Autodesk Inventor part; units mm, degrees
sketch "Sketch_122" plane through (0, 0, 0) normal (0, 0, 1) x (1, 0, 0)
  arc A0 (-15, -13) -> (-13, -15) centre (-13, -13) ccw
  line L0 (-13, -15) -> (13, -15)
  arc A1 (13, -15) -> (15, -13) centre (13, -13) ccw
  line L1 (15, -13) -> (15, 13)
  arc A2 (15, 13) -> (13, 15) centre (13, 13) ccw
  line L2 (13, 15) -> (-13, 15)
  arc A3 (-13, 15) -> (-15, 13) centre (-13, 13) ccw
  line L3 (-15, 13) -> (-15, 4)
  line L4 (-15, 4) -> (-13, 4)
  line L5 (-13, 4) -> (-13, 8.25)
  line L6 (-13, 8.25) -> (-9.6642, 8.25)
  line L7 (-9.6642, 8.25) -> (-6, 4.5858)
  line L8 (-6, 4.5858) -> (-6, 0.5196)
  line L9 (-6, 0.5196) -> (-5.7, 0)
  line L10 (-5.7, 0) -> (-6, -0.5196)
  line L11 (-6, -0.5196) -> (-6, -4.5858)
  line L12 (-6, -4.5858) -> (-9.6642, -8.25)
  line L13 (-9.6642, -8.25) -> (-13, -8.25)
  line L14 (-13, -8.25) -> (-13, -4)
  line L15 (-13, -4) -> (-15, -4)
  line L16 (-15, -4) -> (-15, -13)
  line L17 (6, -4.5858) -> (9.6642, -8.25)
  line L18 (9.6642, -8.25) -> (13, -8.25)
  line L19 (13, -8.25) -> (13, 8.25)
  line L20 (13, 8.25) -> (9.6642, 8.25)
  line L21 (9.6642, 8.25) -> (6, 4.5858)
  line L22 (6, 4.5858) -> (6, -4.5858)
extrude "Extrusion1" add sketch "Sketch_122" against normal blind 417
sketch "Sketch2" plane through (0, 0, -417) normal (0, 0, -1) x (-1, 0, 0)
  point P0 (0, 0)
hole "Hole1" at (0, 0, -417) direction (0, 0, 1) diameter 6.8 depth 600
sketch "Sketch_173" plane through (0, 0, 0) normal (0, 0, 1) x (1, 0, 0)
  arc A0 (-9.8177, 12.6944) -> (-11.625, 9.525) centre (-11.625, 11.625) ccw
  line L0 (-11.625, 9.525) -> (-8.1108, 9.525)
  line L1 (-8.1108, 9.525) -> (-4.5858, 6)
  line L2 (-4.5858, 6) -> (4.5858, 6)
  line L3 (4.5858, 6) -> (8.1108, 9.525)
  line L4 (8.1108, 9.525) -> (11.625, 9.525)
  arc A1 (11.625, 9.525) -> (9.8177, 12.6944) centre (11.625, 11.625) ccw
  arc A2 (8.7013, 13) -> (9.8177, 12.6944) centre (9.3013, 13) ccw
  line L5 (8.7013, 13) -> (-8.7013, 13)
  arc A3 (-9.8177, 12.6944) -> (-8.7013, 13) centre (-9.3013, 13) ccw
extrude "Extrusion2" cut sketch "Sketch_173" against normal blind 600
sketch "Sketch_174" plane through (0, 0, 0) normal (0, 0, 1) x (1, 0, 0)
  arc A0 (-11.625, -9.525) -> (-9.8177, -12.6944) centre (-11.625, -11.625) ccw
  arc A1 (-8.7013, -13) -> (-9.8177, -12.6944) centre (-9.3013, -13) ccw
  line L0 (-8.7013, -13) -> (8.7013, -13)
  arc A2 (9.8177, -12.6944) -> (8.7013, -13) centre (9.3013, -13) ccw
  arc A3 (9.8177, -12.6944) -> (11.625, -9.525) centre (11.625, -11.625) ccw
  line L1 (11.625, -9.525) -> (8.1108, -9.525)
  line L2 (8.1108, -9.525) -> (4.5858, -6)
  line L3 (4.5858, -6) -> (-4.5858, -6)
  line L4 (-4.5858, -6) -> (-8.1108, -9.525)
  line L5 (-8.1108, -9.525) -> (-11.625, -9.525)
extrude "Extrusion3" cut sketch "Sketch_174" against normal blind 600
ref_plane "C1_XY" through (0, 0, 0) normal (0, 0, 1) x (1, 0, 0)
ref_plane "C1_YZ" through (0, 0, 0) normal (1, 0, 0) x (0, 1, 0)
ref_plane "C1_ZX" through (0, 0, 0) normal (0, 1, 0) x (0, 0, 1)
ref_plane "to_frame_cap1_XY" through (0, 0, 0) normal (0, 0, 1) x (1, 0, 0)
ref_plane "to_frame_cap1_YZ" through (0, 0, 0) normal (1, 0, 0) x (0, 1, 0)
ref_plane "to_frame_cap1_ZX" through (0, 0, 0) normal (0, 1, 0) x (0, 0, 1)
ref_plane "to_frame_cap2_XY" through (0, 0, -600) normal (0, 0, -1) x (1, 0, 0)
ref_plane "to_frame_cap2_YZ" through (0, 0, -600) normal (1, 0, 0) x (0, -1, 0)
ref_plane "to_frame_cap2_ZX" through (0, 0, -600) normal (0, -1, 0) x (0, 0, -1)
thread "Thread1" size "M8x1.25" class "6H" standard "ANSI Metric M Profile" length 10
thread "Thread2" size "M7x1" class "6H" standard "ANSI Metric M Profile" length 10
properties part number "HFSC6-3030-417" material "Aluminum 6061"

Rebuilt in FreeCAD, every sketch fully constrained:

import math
import FreeCAD as App
import Part
import Sketcher
Q = App.Units.Quantity


def add_polygon(sketch, points):
    """Adds a closed chain of lines whose ends are joined by coincident constraints."""
    first, n = sketch.GeometryCount, len(points)
    for a, b in zip(points, points[1:] + points[:1]):
        sketch.addGeometry(Part.LineSegment(App.Vector(*a, 0), App.Vector(*b, 0)), False)
    for i in range(n):
        sketch.addConstraint(Sketcher.Constraint("Coincident", first + i, 2, first + (i + 1) % n, 1))

doc = App.newDocument("Part")
params = doc.addObject("Spreadsheet::Sheet", "Params")
for row, (alias, value) in enumerate([
    ("sketch1_radius", "2 mm"),
    ("sketch1_width", "26 mm"),
    ("sketch1_height", "9 mm"),
    ("sketch1_height2", "16.5 mm"),
    ("sketch1_length", "0.6 mm"),
    ("pad1_length", "417 mm"),
    ("sketch2_diameter", "6.8 mm"),
    ("hole_diameter", "6.8 mm"),
    ("hole_depth", "600 mm"),
    ("sketch3_radius", "0.6 mm"),
    ("sketch3_radius2", "2.1 mm"),
    ("pocket1_length", "600 mm"),
    ("sketch4_radius", "2.1 mm"),
    ("sketch4_radius2", "0.6 mm"),
    ("pocket2_length", "600 mm"),
], start=1):
    params.set(f"A{row}", alias)
    params.set(f"B{row}", "=" + value)
    params.setAlias(f"B{row}", alias)

body = doc.addObject("PartDesign::Body", "Body")

# Sketch on XY plane
sketch1 = body.newObject("Sketcher::SketchObject", "Sketch")
sketch1.AttachmentSupport = (doc.getObject("XY_Plane"), [""])
sketch1.MapMode = "FlatFace"
sketch1.addGeometry(Part.LineSegment(App.Vector(-15, -4, 0), App.Vector(-15, -13, 0)), False)  # 0
sketch1.addGeometry(Part.ArcOfCircle(Part.Circle(App.Vector(-13, -13, 0), App.Vector(0, 0, 1), 2), math.radians(180), math.radians(270)), False)  # 1
sketch1.addGeometry(Part.LineSegment(App.Vector(-13, -15, 0), App.Vector(13, -15, 0)), False)  # 2
sketch1.addGeometry(Part.ArcOfCircle(Part.Circle(App.Vector(13, -13, 0), App.Vector(0, 0, 1), 2), math.radians(-90), math.radians(0)), False)  # 3
sketch1.addGeometry(Part.LineSegment(App.Vector(15, -13, 0), App.Vector(15, 13, 0)), False)  # 4
sketch1.addGeometry(Part.ArcOfCircle(Part.Circle(App.Vector(13, 13, 0), App.Vector(0, 0, 1), 2), math.radians(0), math.radians(90)), False)  # 5
sketch1.addGeometry(Part.LineSegment(App.Vector(13, 15, 0), App.Vector(-13, 15, 0)), False)  # 6
sketch1.addGeometry(Part.ArcOfCircle(Part.Circle(App.Vector(-13, 13, 0), App.Vector(0, 0, 1), 2), math.radians(90), math.radians(180)), False)  # 7
sketch1.addGeometry(Part.LineSegment(App.Vector(-15, 13, 0), App.Vector(-15, 4, 0)), False)  # 8
sketch1.addGeometry(Part.LineSegment(App.Vector(-15, 4, 0), App.Vector(-13, 4, 0)), False)  # 9
sketch1.addGeometry(Part.LineSegment(App.Vector(-13, 4, 0), App.Vector(-13, 8.2, 0)), False)  # 10
sketch1.addGeometry(Part.LineSegment(App.Vector(-13, 8.2, 0), App.Vector(-9.7, 8.2, 0)), False)  # 11
sketch1.addGeometry(Part.LineSegment(App.Vector(-9.7, 8.2, 0), App.Vector(-6, 4.6, 0)), False)  # 12
sketch1.addGeometry(Part.LineSegment(App.Vector(-6, 4.6, 0), App.Vector(-6, 0.5, 0)), False)  # 13
sketch1.addGeometry(Part.LineSegment(App.Vector(-6, 0.5, 0), App.Vector(-5.7, 0, 0)), False)  # 14
sketch1.addGeometry(Part.LineSegment(App.Vector(-5.7, 0, 0), App.Vector(-6, -0.5, 0)), False)  # 15
sketch1.addGeometry(Part.LineSegment(App.Vector(-6, -0.5, 0), App.Vector(-6, -4.6, 0)), False)  # 16
sketch1.addGeometry(Part.LineSegment(App.Vector(-6, -4.6, 0), App.Vector(-9.7, -8.2, 0)), False)  # 17
sketch1.addGeometry(Part.LineSegment(App.Vector(-9.7, -8.2, 0), App.Vector(-13, -8.2, 0)), False)  # 18
sketch1.addGeometry(Part.LineSegment(App.Vector(-13, -8.2, 0), App.Vector(-13, -4, 0)), False)  # 19
sketch1.addGeometry(Part.LineSegment(App.Vector(-13, -4, 0), App.Vector(-15, -4, 0)), False)  # 20
add_polygon(sketch1, [(9.7, -8.2), (6, -4.6), (6, 4.6), (9.7, 8.2), (13, 8.2), (13, -8.2)])  # lines 21-26
sketch1.addConstraint(Sketcher.Constraint("Tangent", 0, 2, 1, 1))
sketch1.addConstraint(Sketcher.Constraint("Tangent", 1, 2, 2, 1))
sketch1.addConstraint(Sketcher.Constraint("Tangent", 2, 2, 3, 1))
sketch1.addConstraint(Sketcher.Constraint("Tangent", 3, 2, 4, 1))
sketch1.addConstraint(Sketcher.Constraint("Tangent", 4, 2, 5, 1))
sketch1.addConstraint(Sketcher.Constraint("Tangent", 5, 2, 6, 1))
sketch1.addConstraint(Sketcher.Constraint("Tangent", 6, 2, 7, 1))
sketch1.addConstraint(Sketcher.Constraint("Tangent", 7, 2, 8, 1))
sketch1.addConstraint(Sketcher.Constraint("Coincident", 8, 2, 9, 1))
sketch1.addConstraint(Sketcher.Constraint("Coincident", 9, 2, 10, 1))
sketch1.addConstraint(Sketcher.Constraint("Coincident", 10, 2, 11, 1))
sketch1.addConstraint(Sketcher.Constraint("Coincident", 11, 2, 12, 1))
sketch1.addConstraint(Sketcher.Constraint("Coincident", 12, 2, 13, 1))
sketch1.addConstraint(Sketcher.Constraint("Coincident", 13, 2, 14, 1))
sketch1.addConstraint(Sketcher.Constraint("Coincident", 14, 2, 15, 1))
sketch1.addConstraint(Sketcher.Constraint("Coincident", 15, 2, 16, 1))
sketch1.addConstraint(Sketcher.Constraint("Coincident", 16, 2, 17, 1))
sketch1.addConstraint(Sketcher.Constraint("Coincident", 17, 2, 18, 1))
sketch1.addConstraint(Sketcher.Constraint("Coincident", 18, 2, 19, 1))
sketch1.addConstraint(Sketcher.Constraint("Coincident", 19, 2, 20, 1))
sketch1.addConstraint(Sketcher.Constraint("Coincident", 20, 2, 0, 1))
sketch1.addConstraint(Sketcher.Constraint("Vertical", 0))
sketch1.addConstraint(Sketcher.Constraint("Horizontal", 2))
sketch1.addConstraint(Sketcher.Constraint("Vertical", 4))
sketch1.addConstraint(Sketcher.Constraint("Horizontal", 6))
sketch1.addConstraint(Sketcher.Constraint("Vertical", 8))
sketch1.addConstraint(Sketcher.Constraint("Horizontal", 9))
sketch1.addConstraint(Sketcher.Constraint("Vertical", 10))
sketch1.addConstraint(Sketcher.Constraint("Horizontal", 11))
sketch1.addConstraint(Sketcher.Constraint("Vertical", 13))
sketch1.addConstraint(Sketcher.Constraint("Vertical", 16))
sketch1.addConstraint(Sketcher.Constraint("Horizontal", 18))
sketch1.addConstraint(Sketcher.Constraint("Vertical", 19))
sketch1.addConstraint(Sketcher.Constraint("Horizontal", 20))
sketch1.addConstraint(Sketcher.Constraint("Vertical", 22))
sketch1.addConstraint(Sketcher.Constraint("Horizontal", 24))
sketch1.addConstraint(Sketcher.Constraint("Vertical", 25))
sketch1.addConstraint(Sketcher.Constraint("Horizontal", 26))
sketch1.addConstraint(Sketcher.Constraint("Equal", 1, 3))
sketch1.addConstraint(Sketcher.Constraint("Equal", 3, 5))
sketch1.addConstraint(Sketcher.Constraint("Equal", 5, 7))
sketch1.addConstraint(Sketcher.Constraint("Symmetric", 1, 3, 5, 3, -1, 1))
sketch1.addConstraint(Sketcher.Constraint("Symmetric", 12, 2, 21, 2, -1, 1))
sketch1.addConstraint(Sketcher.Constraint("Symmetric", 16, 2, 22, 2, -1, 1))
sketch1.addConstraint(Sketcher.Constraint("Symmetric", 17, 2, 23, 2, -1, 1))
sketch1.addConstraint(Sketcher.Constraint("Symmetric", 10, 2, 25, 2, -1, 1))
sketch1.addConstraint(Sketcher.Constraint("Symmetric", 11, 2, 23, 2, -2))
sketch1.addConstraint(Sketcher.Constraint("Symmetric", 9, 2, 19, 2, -1))
sketch1.addConstraint(Sketcher.Constraint("PointOnObject", 14, 2, -1))
sketch1.addConstraint(Sketcher.Constraint("Perpendicular", 12, 17))
sketch1.addConstraint(Sketcher.Constraint("Perpendicular", 17, 21))
sketch1.addConstraint(Sketcher.Constraint("Horizontal", 16, 2, 21, 2))
sketch1.addConstraint(Sketcher.Constraint("Vertical", 1, 3, 7, 3))
sketch1.addConstraint(Sketcher.Constraint("Vertical", 6, 2, 9, 2))
sketch1.addConstraint(Sketcher.Constraint("Equal", 6, 4))
sketch1.addConstraint(Sketcher.Constraint("Equal", 13, 16))
sketch1.addConstraint(Sketcher.Constraint("Radius", 1, 2.0))
sketch1.addConstraint(Sketcher.Constraint("DistanceX", 2, 1, 2, 2, 26.0))
sketch1.addConstraint(Sketcher.Constraint("DistanceY", 0, 2, 0, 1, 9.0))
sketch1.addConstraint(Sketcher.Constraint("Angle", 14, Q("-59.9993 deg")))
sketch1.addConstraint(Sketcher.Constraint("DistanceY", 25, 2, 25, 1, 16.5))
sketch1.addConstraint(Sketcher.Constraint("DistanceX", 12, 2, -1, 1, 6.0))
sketch1.addConstraint(Sketcher.Constraint("Distance", 14, 0.6))
sketch1.addConstraint(Sketcher.Constraint("Distance", 12, 5.182))
sketch1.setExpression("Constraints[62]", "Params.sketch1_radius")
sketch1.setExpression("Constraints[63]", "Params.sketch1_width")
sketch1.setExpression("Constraints[64]", "Params.sketch1_height")
sketch1.setExpression("Constraints[66]", "Params.sketch1_height2")
sketch1.setExpression("Constraints[68]", "Params.sketch1_length")
pad1 = body.newObject("PartDesign::Pad", "Pad")
pad1.Profile = sketch1
pad1.setExpression("Length", "Params.pad1_length")
pad1.Reversed = True

# Sketch on XY plane
sketch2 = body.newObject("Sketcher::SketchObject", "Sketch001")
sketch2.AttachmentSupport = (doc.getObject("XY_Plane"), [""])
sketch2.MapMode = "FlatFace"
sketch2.AttachmentOffset = App.Placement(App.Vector(0, 0, -417), App.Rotation())
sketch2.addGeometry(Part.Circle(App.Vector(0, 0, 0), App.Vector(0, 0, 1), 3.4), False)
sketch2.addConstraint(Sketcher.Constraint("Coincident", 0, 3, -1, 1))
sketch2.addConstraint(Sketcher.Constraint("Diameter", 0, 6.8))
sketch2.setExpression("Constraints[1]", "Params.sketch2_diameter")
doc.recompute()
hole = body.newObject("PartDesign::Hole", "Hole")
hole.Profile = sketch2
hole.ThreadType = "None"
hole.setExpression("Diameter", "Params.hole_diameter")
hole.DepthType = "Dimension"
hole.setExpression("Depth", "Params.hole_depth")
hole.DrillPoint = "Flat"
hole.Reversed = True

# Sketch on XY plane
sketch3 = body.newObject("Sketcher::SketchObject", "Sketch002")
sketch3.AttachmentSupport = (doc.getObject("XY_Plane"), [""])
sketch3.MapMode = "FlatFace"
sketch3.addGeometry(Part.ArcOfCircle(Part.Circle(App.Vector(-9.3, 13, 0), App.Vector(0, 0, 1), 0.6), math.radians(-149), math.radians(0)), False)
sketch3.addGeometry(Part.ArcOfCircle(Part.Circle(App.Vector(-11.6, 11.6, 0), App.Vector(0, 0, 1), 2.1), math.radians(31), math.radians(270)), False)
sketch3.addGeometry(Part.LineSegment(App.Vector(-11.6, 9.5, 0), App.Vector(-8.1, 9.5, 0)), False)
sketch3.addGeometry(Part.LineSegment(App.Vector(-8.1, 9.5, 0), App.Vector(-4.6, 6, 0)), False)
sketch3.addGeometry(Part.LineSegment(App.Vector(-4.6, 6, 0), App.Vector(4.6, 6, 0)), False)
sketch3.addGeometry(Part.LineSegment(App.Vector(4.6, 6, 0), App.Vector(8.1, 9.5, 0)), False)
sketch3.addGeometry(Part.LineSegment(App.Vector(8.1, 9.5, 0), App.Vector(11.6, 9.5, 0)), False)
sketch3.addGeometry(Part.ArcOfCircle(Part.Circle(App.Vector(11.6, 11.6, 0), App.Vector(0, 0, 1), 2.1), math.radians(-90), math.radians(149)), False)
sketch3.addGeometry(Part.ArcOfCircle(Part.Circle(App.Vector(9.3, 13, 0), App.Vector(0, 0, 1), 0.6), math.radians(180), math.radians(329)), False)
sketch3.addGeometry(Part.LineSegment(App.Vector(8.7, 13, 0), App.Vector(-8.7, 13, 0)), False)
sketch3.addConstraint(Sketcher.Constraint("Tangent", 0, 1, 1, 1))
sketch3.addConstraint(Sketcher.Constraint("Tangent", 1, 2, 2, 1))
sketch3.addConstraint(Sketcher.Constraint("Coincident", 2, 2, 3, 1))
sketch3.addConstraint(Sketcher.Constraint("Coincident", 3, 2, 4, 1))
sketch3.addConstraint(Sketcher.Constraint("Coincident", 4, 2, 5, 1))
sketch3.addConstraint(Sketcher.Constraint("Coincident", 5, 2, 6, 1))
sketch3.addConstraint(Sketcher.Constraint("Tangent", 6, 2, 7, 1))
sketch3.addConstraint(Sketcher.Constraint("Tangent", 7, 2, 8, 2))
sketch3.addConstraint(Sketcher.Constraint("Coincident", 8, 1, 9, 1))
sketch3.addConstraint(Sketcher.Constraint("Coincident", 9, 2, 0, 2))
sketch3.addConstraint(Sketcher.Constraint("Horizontal", 2))
sketch3.addConstraint(Sketcher.Constraint("Horizontal", 4))
sketch3.addConstraint(Sketcher.Constraint("Horizontal", 6))
sketch3.addConstraint(Sketcher.Constraint("Horizontal", 9))
sketch3.addConstraint(Sketcher.Constraint("Equal", 1, 7))
sketch3.addConstraint(Sketcher.Constraint("Equal", 0, 8))
sketch3.addConstraint(Sketcher.Constraint("Symmetric", 1, 3, 7, 3, -2))
sketch3.addConstraint(Sketcher.Constraint("Perpendicular", 3, 5))
sketch3.addConstraint(Sketcher.Constraint("Horizontal", 0, 3, 8, 3))
sketch3.addConstraint(Sketcher.Constraint("Horizontal", 0, 3, 8, 1))
sketch3.addConstraint(Sketcher.Constraint("Equal", 2, 6))
sketch3.addConstraint(Sketcher.Constraint("Equal", 3, 5))
sketch3.addConstraint(Sketcher.Constraint("Radius", 0, 0.6))
sketch3.addConstraint(Sketcher.Constraint("Radius", 1, 2.1))
sketch3.addConstraint(Sketcher.Constraint("DistanceY", -1, 1, 0, 3, 13.0))
sketch3.addConstraint(Sketcher.Constraint("DistanceY", -1, 1, 3, 2, 6.0))
sketch3.addConstraint(Sketcher.Constraint("DistanceX", 1, 3, 7, 3, 23.25))
sketch3.addConstraint(Sketcher.Constraint("Distance", 3, 4.985))
sketch3.addConstraint(Sketcher.Constraint("DistanceX", 2, 1, 2, 2, 3.5142))
sketch3.setExpression("Constraints[22]", "Params.sketch3_radius")
sketch3.setExpression("Constraints[23]", "Params.sketch3_radius2")
pocket1 = body.newObject("PartDesign::Pocket", "Pocket")
pocket1.Profile = sketch3
pocket1.setExpression("Length", "Params.pocket1_length")

# Sketch on XY plane
sketch4 = body.newObject("Sketcher::SketchObject", "Sketch003")
sketch4.AttachmentSupport = (doc.getObject("XY_Plane"), [""])
sketch4.MapMode = "FlatFace"
sketch4.addGeometry(Part.LineSegment(App.Vector(-8.1, -9.5, 0), App.Vector(-11.6, -9.5, 0)), False)
sketch4.addGeometry(Part.ArcOfCircle(Part.Circle(App.Vector(-11.6, -11.6, 0), App.Vector(0, 0, 1), 2.1), math.radians(90), math.radians(329)), False)
sketch4.addGeometry(Part.ArcOfCircle(Part.Circle(App.Vector(-9.3, -13, 0), App.Vector(0, 0, 1), 0.6), math.radians(0), math.radians(149)), False)
sketch4.addGeometry(Part.LineSegment(App.Vector(-8.7, -13, 0), App.Vector(8.7, -13, 0)), False)
sketch4.addGeometry(Part.ArcOfCircle(Part.Circle(App.Vector(9.3, -13, 0), App.Vector(0, 0, 1), 0.6), math.radians(31), math.radians(180)), False)
sketch4.addGeometry(Part.ArcOfCircle(Part.Circle(App.Vector(11.6, -11.6, 0), App.Vector(0, 0, 1), 2.1), math.radians(-149), math.radians(90)), False)
sketch4.addGeometry(Part.LineSegment(App.Vector(11.6, -9.5, 0), App.Vector(8.1, -9.5, 0)), False)
sketch4.addGeometry(Part.LineSegment(App.Vector(8.1, -9.5, 0), App.Vector(4.6, -6, 0)), False)
sketch4.addGeometry(Part.LineSegment(App.Vector(4.6, -6, 0), App.Vector(-4.6, -6, 0)), False)
sketch4.addGeometry(Part.LineSegment(App.Vector(-4.6, -6, 0), App.Vector(-8.1, -9.5, 0)), False)
sketch4.addConstraint(Sketcher.Constraint("Tangent", 0, 2, 1, 1))
sketch4.addConstraint(Sketcher.Constraint("Tangent", 1, 2, 2, 2))
sketch4.addConstraint(Sketcher.Constraint("Coincident", 2, 1, 3, 1))
sketch4.addConstraint(Sketcher.Constraint("Coincident", 3, 2, 4, 2))
sketch4.addConstraint(Sketcher.Constraint("Tangent", 4, 1, 5, 1))
sketch4.addConstraint(Sketcher.Constraint("Tangent", 5, 2, 6, 1))
sketch4.addConstraint(Sketcher.Constraint("Coincident", 6, 2, 7, 1))
sketch4.addConstraint(Sketcher.Constraint("Coincident", 7, 2, 8, 1))
sketch4.addConstraint(Sketcher.Constraint("Coincident", 8, 2, 9, 1))
sketch4.addConstraint(Sketcher.Constraint("Coincident", 9, 2, 0, 1))
sketch4.addConstraint(Sketcher.Constraint("Horizontal", 0))
sketch4.addConstraint(Sketcher.Constraint("Horizontal", 3))
sketch4.addConstraint(Sketcher.Constraint("Horizontal", 6))
sketch4.addConstraint(Sketcher.Constraint("Horizontal", 8))
sketch4.addConstraint(Sketcher.Constraint("Equal", 2, 4))
sketch4.addConstraint(Sketcher.Constraint("Equal", 1, 5))
sketch4.addConstraint(Sketcher.Constraint("Symmetric", 2, 3, 4, 3, -2))
sketch4.addConstraint(Sketcher.Constraint("Symmetric", 6, 2, 9, 2, -2))
sketch4.addConstraint(Sketcher.Constraint("Perpendicular", 7, 9))
sketch4.addConstraint(Sketcher.Constraint("Horizontal", 4, 3, 2, 1))
sketch4.addConstraint(Sketcher.Constraint("Equal", 7, 9))
sketch4.addConstraint(Sketcher.Constraint("Radius", 1, 2.1))
sketch4.addConstraint(Sketcher.Constraint("Radius", 2, 0.6))
sketch4.addConstraint(Sketcher.Constraint("DistanceY", 2, 3, -1, 1, 13.0))
sketch4.addConstraint(Sketcher.Constraint("DistanceY", 7, 2, -1, 1, 6.0))
sketch4.addConstraint(Sketcher.Constraint("DistanceX", 1, 3, 5, 3, 23.25))
sketch4.addConstraint(Sketcher.Constraint("Distance", 7, 4.985))
sketch4.addConstraint(Sketcher.Constraint("DistanceX", 0, 2, 0, 1, 3.5142))
sketch4.setExpression("Constraints[21]", "Params.sketch4_radius")
sketch4.setExpression("Constraints[22]", "Params.sketch4_radius2")
pocket2 = body.newObject("PartDesign::Pocket", "Pocket001")
pocket2.Profile = sketch4
pocket2.setExpression("Length", "Params.pocket2_length")

doc.recompute()
